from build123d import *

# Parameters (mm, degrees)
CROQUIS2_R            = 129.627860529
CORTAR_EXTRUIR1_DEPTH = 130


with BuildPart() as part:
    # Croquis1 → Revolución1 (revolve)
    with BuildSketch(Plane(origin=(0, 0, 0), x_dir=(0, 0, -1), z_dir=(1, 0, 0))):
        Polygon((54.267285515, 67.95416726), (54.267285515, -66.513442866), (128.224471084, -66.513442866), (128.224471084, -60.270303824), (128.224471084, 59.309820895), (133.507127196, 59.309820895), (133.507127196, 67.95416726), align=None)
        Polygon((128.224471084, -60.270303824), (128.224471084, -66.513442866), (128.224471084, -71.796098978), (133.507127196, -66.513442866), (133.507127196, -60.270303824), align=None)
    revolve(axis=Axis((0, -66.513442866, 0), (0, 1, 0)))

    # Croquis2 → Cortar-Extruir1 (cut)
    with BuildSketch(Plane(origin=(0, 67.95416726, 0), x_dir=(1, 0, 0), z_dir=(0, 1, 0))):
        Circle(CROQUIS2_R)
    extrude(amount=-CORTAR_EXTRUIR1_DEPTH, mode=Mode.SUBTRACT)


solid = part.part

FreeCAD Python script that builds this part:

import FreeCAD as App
import Part
import Sketcher
from FreeCAD import Vector
Q = App.Units.Quantity


def add_polygon(sketch, points):
    """Adds a closed chain of lines whose ends are joined by coincident constraints."""
    first, n = sketch.GeometryCount, len(points)
    for a, b in zip(points, points[1:] + points[:1]):
        sketch.addGeometry(Part.LineSegment(App.Vector(*a, 0), App.Vector(*b, 0)), False)
    for i in range(n):
        sketch.addConstraint(Sketcher.Constraint("Coincident", first + i, 2, first + (i + 1) % n, 1))

doc = App.newDocument("Part")
params = doc.addObject("Spreadsheet::Sheet", "Params")
for row, (alias, value) in enumerate([
    ("revolution_angle", "360 deg"),
    ("pocket1_length", "130 mm"),
], start=1):
    params.set(f"A{row}", alias)
    params.set(f"B{row}", "=" + value)
    params.setAlias(f"B{row}", alias)

body = doc.addObject("PartDesign::Body", "Body")
body.AllowCompound = True

# Sketch on YZ plane
sketch1 = body.newObject("Sketcher::SketchObject", "Sketch")
sketch1.AttachmentSupport = (doc.getObject("YZ_Plane"), [""])
sketch1.MapMode = "FlatFace"
add_polygon(sketch1, [(68, -54), (-67, -54), (-67, -128), (-72, -128), (-67, -134), (-60, -134), (-60, -128), (59, -128), (59, -134), (68, -134)])  # lines 0-9
sketch1.addConstraint(Sketcher.Constraint("Horizontal", 0))
sketch1.addConstraint(Sketcher.Constraint("Vertical", 1))
sketch1.addConstraint(Sketcher.Constraint("Horizontal", 2))
sketch1.addConstraint(Sketcher.Constraint("Horizontal", 4))
sketch1.addConstraint(Sketcher.Constraint("Vertical", 5))
sketch1.addConstraint(Sketcher.Constraint("Horizontal", 6))
sketch1.addConstraint(Sketcher.Constraint("Vertical", 7))
sketch1.addConstraint(Sketcher.Constraint("Horizontal", 8))
sketch1.addConstraint(Sketcher.Constraint("Vertical", 9))
sketch1.addConstraint(Sketcher.Constraint("Horizontal", 2, 2, 5, 2))
sketch1.addConstraint(Sketcher.Constraint("Horizontal", 4, 2, 7, 2))
sketch1.addConstraint(Sketcher.Constraint("Vertical", 1, 2, 3, 2))
sketch1.addConstraint(Sketcher.Constraint("Equal", 2, 5))
sketch1.addConstraint(Sketcher.Constraint("DistanceX", 0, 2, 0, 1, Q("134.46761 mm")))
sketch1.addConstraint(Sketcher.Constraint("DistanceX", 4, 1, 4, 2, Q("6.243139 mm")))
sketch1.addConstraint(Sketcher.Constraint("DistanceY", 9, 1, 9, 2, Q("79.239842 mm")))
sketch1.addConstraint(Sketcher.Constraint("DistanceX", 2, 2, -1, 1, Q("71.796099 mm")))
sketch1.addConstraint(Sketcher.Constraint("DistanceX", 2, 2, 2, 1, Q("5.282656 mm")))
sketch1.addConstraint(Sketcher.Constraint("DistanceX", 6, 1, 6, 2, Q("119.580125 mm")))
sketch1.addConstraint(Sketcher.Constraint("DistanceY", 1, 2, -1, 1, Q("128.224471 mm")))
revolution = body.newObject("PartDesign::Revolution", "Revolution")
revolution.Profile = sketch1
revolution.ReferenceAxis = (sketch1, ["H_Axis"])
revolution.setExpression("Angle", "Params.revolution_angle")

# Sketch on XZ plane
sketch2 = body.newObject("Sketcher::SketchObject", "Sketch001")
sketch2.AttachmentSupport = (doc.getObject("XZ_Plane"), [""])
sketch2.MapMode = "FlatFace"
sketch2.AttachmentOffset = App.Placement(Vector(0, 0, -67.954167), App.Rotation())
sketch2.addGeometry(Part.Circle(Vector(0, 0, 0), Vector(0, 0, 1), 130), False)
sketch2.addConstraint(Sketcher.Constraint("Coincident", 0, 3, -1, 1))
sketch2.addConstraint(Sketcher.Constraint("Diameter", 0, Q("259.255721 mm")))
pocket1 = body.newObject("PartDesign::Pocket", "Pocket")
pocket1.Profile = sketch2
pocket1.setExpression("Length", "Params.pocket1_length")
pocket1.Reversed = True

doc.recompute()
